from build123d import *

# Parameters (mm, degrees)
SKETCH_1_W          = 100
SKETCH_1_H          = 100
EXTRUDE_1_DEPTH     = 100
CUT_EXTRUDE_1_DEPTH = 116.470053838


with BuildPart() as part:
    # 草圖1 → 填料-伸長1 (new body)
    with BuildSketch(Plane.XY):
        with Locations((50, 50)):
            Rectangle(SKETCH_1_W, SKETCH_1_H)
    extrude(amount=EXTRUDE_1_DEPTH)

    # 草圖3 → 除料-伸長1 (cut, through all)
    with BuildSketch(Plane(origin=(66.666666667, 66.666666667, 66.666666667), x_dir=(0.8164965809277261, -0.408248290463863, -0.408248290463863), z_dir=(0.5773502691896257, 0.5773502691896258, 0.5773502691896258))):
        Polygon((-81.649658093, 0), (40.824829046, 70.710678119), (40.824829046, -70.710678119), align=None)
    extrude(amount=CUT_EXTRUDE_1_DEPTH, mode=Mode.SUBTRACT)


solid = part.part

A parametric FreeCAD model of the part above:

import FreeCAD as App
import Part
import Sketcher

V = App.Vector
Q = App.Units.Quantity


def add_polygon(sketch, points):
    """Adds a closed chain of lines whose ends are joined by coincident constraints."""
    first, n = sketch.GeometryCount, len(points)
    for a, b in zip(points, points[1:] + points[:1]):
        sketch.addGeometry(Part.LineSegment(App.Vector(*a, 0), App.Vector(*b, 0)), False)
    for i in range(n):
        sketch.addConstraint(Sketcher.Constraint("Coincident", first + i, 2, first + (i + 1) % n, 1))

doc = App.newDocument("Part")
body = doc.addObject("PartDesign::Body", "Body")

# Sketch on XY plane
sketch1 = body.newObject("Sketcher::SketchObject", "Sketch")
sketch1.AttachmentSupport = (doc.getObject("XY_Plane"), [""])
sketch1.MapMode = "FlatFace"
add_polygon(sketch1, [(0, 100), (0, 0), (100, 0), (100, 100)])  # lines 0-3
sketch1.addConstraint(Sketcher.Constraint("Vertical", 0))
sketch1.addConstraint(Sketcher.Constraint("Horizontal", 1))
sketch1.addConstraint(Sketcher.Constraint("Vertical", 2))
sketch1.addConstraint(Sketcher.Constraint("Horizontal", 3))
sketch1.addConstraint(Sketcher.Constraint("Coincident", 0, 2, -1, 1))
sketch1.addConstraint(Sketcher.Constraint("Equal", 3, 0))
sketch1.addConstraint(Sketcher.Constraint("DistanceX", 1, 1, 1, 2, 100.0))
pad1 = body.newObject("PartDesign::Pad", "Pad")
pad1.Profile = sketch1
pad1.Length = 100

# Sketch on an angled plane
sketch2 = body.newObject("Sketcher::SketchObject", "Sketch001")
sketch2.Placement = App.Placement(V(66.666667, 66.666667, 66.666667), App.Rotation(V(0.816496581, -0.40824829, -0.40824829), V(0, 0.707106781, -0.707106781), V(0.577350269, 0.577350269, 0.577350269), "ZXY"))
add_polygon(sketch2, [(41, 71), (-82, 0), (41, -71)])  # lines 0-2
sketch2.addConstraint(Sketcher.Constraint("Vertical", 2))
sketch2.addConstraint(Sketcher.Constraint("PointOnObject", 0, 2, -1))
sketch2.addConstraint(Sketcher.Constraint("Equal", 0, 1))
sketch2.addConstraint(Sketcher.Constraint("Angle", 0, Q("-150 deg")))
sketch2.addConstraint(Sketcher.Constraint("DistanceY", 2, 1, 2, 2, 141.421356))
sketch2.addConstraint(Sketcher.Constraint("DistanceX", 0, 2, -1, 1, 81.649658))
pocket1 = body.newObject("PartDesign::Pocket", "Pocket")
pocket1.Profile = sketch2
pocket1.Type = "ThroughAll"
pocket1.Reversed = True

doc.recompute()
